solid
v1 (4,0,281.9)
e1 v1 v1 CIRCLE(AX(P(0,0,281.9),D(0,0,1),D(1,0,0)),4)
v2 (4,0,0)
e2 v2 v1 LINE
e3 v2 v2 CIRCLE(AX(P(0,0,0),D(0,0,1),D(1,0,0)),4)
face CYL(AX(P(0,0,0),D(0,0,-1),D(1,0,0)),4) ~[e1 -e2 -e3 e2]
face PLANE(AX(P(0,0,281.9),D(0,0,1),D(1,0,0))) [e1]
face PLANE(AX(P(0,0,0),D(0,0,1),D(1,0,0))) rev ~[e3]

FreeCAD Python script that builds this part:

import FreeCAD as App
import Part
import Sketcher
from FreeCAD import Vector

doc = App.newDocument("Part")
params = doc.addObject("Spreadsheet::Sheet", "Params")
for row, (alias, value) in enumerate([
    ("sketch1_diameter", "8 mm"),
    ("pad1_length", "281.9 mm"),
], start=1):
    params.set(f"A{row}", alias)
    params.set(f"B{row}", "=" + value)
    params.setAlias(f"B{row}", alias)

body = doc.addObject("PartDesign::Body", "Body")

sketch1 = body.newObject("Sketcher::SketchObject", "Sketch")
sketch1.AttachmentSupport = (doc.getObject("XY_Plane"), [""])
sketch1.MapMode = "FlatFace"
sketch1.addGeometry(Part.Circle(Vector(0, 0, 0), Vector(0, 0, 1), 4), False)
sketch1.addConstraint([
    Sketcher.Constraint("Coincident", 0, 3, -1, 1),
    Sketcher.Constraint("Diameter", 0, 8.0),
])
sketch1.setExpression("Constraints[1]", "Params.sketch1_diameter")
pad1 = body.newObject("PartDesign::Pad", "Pad")
pad1.Profile = sketch1
pad1.setExpression("Length", "Params.pad1_length")

doc.recompute()
